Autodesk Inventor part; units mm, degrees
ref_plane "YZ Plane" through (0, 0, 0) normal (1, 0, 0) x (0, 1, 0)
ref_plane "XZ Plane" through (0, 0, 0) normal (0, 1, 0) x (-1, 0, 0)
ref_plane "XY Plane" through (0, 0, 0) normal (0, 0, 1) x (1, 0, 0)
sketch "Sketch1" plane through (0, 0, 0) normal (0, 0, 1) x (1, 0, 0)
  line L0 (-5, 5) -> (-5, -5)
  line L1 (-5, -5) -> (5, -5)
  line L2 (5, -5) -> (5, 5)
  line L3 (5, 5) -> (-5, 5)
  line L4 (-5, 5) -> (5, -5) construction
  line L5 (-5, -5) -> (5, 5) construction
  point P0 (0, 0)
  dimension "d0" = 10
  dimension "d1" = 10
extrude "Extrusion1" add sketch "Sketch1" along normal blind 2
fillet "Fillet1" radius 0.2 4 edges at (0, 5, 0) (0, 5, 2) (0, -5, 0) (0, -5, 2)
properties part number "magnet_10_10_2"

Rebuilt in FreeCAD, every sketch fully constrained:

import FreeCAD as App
import Part
import Sketcher
from FreeCAD import Vector


def edges_at(feature, points):
    """Names of the edges that pass closest to the given points."""
    edges = feature.Shape.Edges
    near = lambda p: min(range(len(edges)), key=lambda i: edges[i].distToShape(Part.Vertex(*p))[0])
    return sorted({f"Edge{near(p) + 1}" for p in points})

doc = App.newDocument("Part")
body = doc.addObject("PartDesign::Body", "Body")

sketch1 = doc.addObject("Sketcher::SketchObject", "Sketch")
body.addObject(sketch1)
sketch1.AttachmentSupport = (doc.XY_Plane, [""])
sketch1.MapMode = "FlatFace"
sketch1.addGeometry(Part.LineSegment(Vector(5, 5, 0), Vector(-5, 5, 0)), False)
sketch1.addGeometry(Part.LineSegment(Vector(-5, 5, 0), Vector(-5, -5, 0)), False)
sketch1.addGeometry(Part.LineSegment(Vector(-5, -5, 0), Vector(5, -5, 0)), False)
sketch1.addGeometry(Part.LineSegment(Vector(5, -5, 0), Vector(5, 5, 0)), False)
sketch1.addConstraint(Sketcher.Constraint("Coincident", 0, 2, 1, 1))
sketch1.addConstraint(Sketcher.Constraint("Coincident", 1, 2, 2, 1))
sketch1.addConstraint(Sketcher.Constraint("Coincident", 2, 2, 3, 1))
sketch1.addConstraint(Sketcher.Constraint("Coincident", 3, 2, 0, 1))
sketch1.addConstraint(Sketcher.Constraint("Horizontal", 0))
sketch1.addConstraint(Sketcher.Constraint("Vertical", 1))
sketch1.addConstraint(Sketcher.Constraint("Horizontal", 2))
sketch1.addConstraint(Sketcher.Constraint("Vertical", 3))
sketch1.addConstraint(Sketcher.Constraint("Symmetric", 0, 2, 2, 2, -1, 1))
sketch1.addConstraint(Sketcher.Constraint("Equal", 2, 1))
sketch1.addConstraint(Sketcher.Constraint("DistanceX", 0, 2, 0, 1, 10.0))
pad1 = doc.addObject("PartDesign::Pad", "Pad")
body.addObject(pad1)
pad1.Profile = sketch1
pad1.Length = 2
doc.recompute()

fillet = doc.addObject("PartDesign::Fillet", "Fillet")
body.addObject(fillet)
fillet.Base = (pad1, edges_at(pad1, [
    (0, 5, 0),
    (0, 5, 2),
    (0, -5, 0),
    (0, -5, 2),
]))
fillet.Radius = 0.2

doc.recompute()
